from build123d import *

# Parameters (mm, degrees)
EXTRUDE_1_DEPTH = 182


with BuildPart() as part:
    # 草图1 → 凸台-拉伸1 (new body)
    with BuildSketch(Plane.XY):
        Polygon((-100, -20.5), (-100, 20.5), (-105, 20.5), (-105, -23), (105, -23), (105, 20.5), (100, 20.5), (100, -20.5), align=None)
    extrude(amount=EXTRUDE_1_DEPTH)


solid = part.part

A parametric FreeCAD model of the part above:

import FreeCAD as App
import Part
import Sketcher

V = App.Vector
Q = App.Units.Quantity

doc = App.newDocument("Part")
body = doc.addObject("PartDesign::Body", "Body")

# Sketch on XY plane
sketch1 = body.newObject("Sketcher::SketchObject", "Sketch")
sketch1.AttachmentSupport = (doc.getObject("XY_Plane"), [""])
sketch1.MapMode = "FlatFace"
sketch1.addGeometry([
    Part.LineSegment(V(-100, -20.5, 0), V(-100, 20.5, 0)),  # 0
    Part.LineSegment(V(-100, 20.5, 0), V(-105, 20.5, 0)),  # 1
    Part.LineSegment(V(-105, 20.5, 0), V(-105, -23, 0)),  # 2
    Part.LineSegment(V(-105, -23, 0), V(105, -23, 0)),  # 3
    Part.LineSegment(V(105, -23, 0), V(105, 20.5, 0)),  # 4
    Part.LineSegment(V(105, 20.5, 0), V(100, 20.5, 0)),  # 5
    Part.LineSegment(V(100, 20.5, 0), V(100, -20.5, 0)),  # 6
    Part.LineSegment(V(100, -20.5, 0), V(-100, -20.5, 0)),  # 7
], False)
sketch1.addConstraint([
    Sketcher.Constraint("Coincident", 0, 2, 1, 1),
    Sketcher.Constraint("Coincident", 1, 2, 2, 1),
    Sketcher.Constraint("Coincident", 2, 2, 3, 1),
    Sketcher.Constraint("Coincident", 3, 2, 4, 1),
    Sketcher.Constraint("Coincident", 4, 2, 5, 1),
    Sketcher.Constraint("Coincident", 5, 2, 6, 1),
    Sketcher.Constraint("Coincident", 6, 2, 7, 1),
    Sketcher.Constraint("Coincident", 7, 2, 0, 1),
    Sketcher.Constraint("Vertical", 0),
    Sketcher.Constraint("Horizontal", 1),
    Sketcher.Constraint("Vertical", 2),
    Sketcher.Constraint("Horizontal", 3),
    Sketcher.Constraint("Vertical", 4),
    Sketcher.Constraint("Horizontal", 5),
    Sketcher.Constraint("Vertical", 6),
    Sketcher.Constraint("Horizontal", 7),
    Sketcher.Constraint("Symmetric", 0, 2, 6, 2, -1, 1),
    Sketcher.Constraint("Symmetric", 1, 2, 4, 2, -2),
    Sketcher.Constraint("DistanceX", 1, 2, 1, 1, Q("5 mm")),
    Sketcher.Constraint("DistanceX", 3, 1, 3, 2, Q("210 mm")),
    Sketcher.Constraint("DistanceY", 0, 1, 0, 2, Q("41 mm")),
    Sketcher.Constraint("DistanceY", 2, 2, 2, 1, Q("43.5 mm")),
])
pad1 = body.newObject("PartDesign::Pad", "Pad")
pad1.Profile = sketch1
pad1.Length = 182

doc.recompute()
